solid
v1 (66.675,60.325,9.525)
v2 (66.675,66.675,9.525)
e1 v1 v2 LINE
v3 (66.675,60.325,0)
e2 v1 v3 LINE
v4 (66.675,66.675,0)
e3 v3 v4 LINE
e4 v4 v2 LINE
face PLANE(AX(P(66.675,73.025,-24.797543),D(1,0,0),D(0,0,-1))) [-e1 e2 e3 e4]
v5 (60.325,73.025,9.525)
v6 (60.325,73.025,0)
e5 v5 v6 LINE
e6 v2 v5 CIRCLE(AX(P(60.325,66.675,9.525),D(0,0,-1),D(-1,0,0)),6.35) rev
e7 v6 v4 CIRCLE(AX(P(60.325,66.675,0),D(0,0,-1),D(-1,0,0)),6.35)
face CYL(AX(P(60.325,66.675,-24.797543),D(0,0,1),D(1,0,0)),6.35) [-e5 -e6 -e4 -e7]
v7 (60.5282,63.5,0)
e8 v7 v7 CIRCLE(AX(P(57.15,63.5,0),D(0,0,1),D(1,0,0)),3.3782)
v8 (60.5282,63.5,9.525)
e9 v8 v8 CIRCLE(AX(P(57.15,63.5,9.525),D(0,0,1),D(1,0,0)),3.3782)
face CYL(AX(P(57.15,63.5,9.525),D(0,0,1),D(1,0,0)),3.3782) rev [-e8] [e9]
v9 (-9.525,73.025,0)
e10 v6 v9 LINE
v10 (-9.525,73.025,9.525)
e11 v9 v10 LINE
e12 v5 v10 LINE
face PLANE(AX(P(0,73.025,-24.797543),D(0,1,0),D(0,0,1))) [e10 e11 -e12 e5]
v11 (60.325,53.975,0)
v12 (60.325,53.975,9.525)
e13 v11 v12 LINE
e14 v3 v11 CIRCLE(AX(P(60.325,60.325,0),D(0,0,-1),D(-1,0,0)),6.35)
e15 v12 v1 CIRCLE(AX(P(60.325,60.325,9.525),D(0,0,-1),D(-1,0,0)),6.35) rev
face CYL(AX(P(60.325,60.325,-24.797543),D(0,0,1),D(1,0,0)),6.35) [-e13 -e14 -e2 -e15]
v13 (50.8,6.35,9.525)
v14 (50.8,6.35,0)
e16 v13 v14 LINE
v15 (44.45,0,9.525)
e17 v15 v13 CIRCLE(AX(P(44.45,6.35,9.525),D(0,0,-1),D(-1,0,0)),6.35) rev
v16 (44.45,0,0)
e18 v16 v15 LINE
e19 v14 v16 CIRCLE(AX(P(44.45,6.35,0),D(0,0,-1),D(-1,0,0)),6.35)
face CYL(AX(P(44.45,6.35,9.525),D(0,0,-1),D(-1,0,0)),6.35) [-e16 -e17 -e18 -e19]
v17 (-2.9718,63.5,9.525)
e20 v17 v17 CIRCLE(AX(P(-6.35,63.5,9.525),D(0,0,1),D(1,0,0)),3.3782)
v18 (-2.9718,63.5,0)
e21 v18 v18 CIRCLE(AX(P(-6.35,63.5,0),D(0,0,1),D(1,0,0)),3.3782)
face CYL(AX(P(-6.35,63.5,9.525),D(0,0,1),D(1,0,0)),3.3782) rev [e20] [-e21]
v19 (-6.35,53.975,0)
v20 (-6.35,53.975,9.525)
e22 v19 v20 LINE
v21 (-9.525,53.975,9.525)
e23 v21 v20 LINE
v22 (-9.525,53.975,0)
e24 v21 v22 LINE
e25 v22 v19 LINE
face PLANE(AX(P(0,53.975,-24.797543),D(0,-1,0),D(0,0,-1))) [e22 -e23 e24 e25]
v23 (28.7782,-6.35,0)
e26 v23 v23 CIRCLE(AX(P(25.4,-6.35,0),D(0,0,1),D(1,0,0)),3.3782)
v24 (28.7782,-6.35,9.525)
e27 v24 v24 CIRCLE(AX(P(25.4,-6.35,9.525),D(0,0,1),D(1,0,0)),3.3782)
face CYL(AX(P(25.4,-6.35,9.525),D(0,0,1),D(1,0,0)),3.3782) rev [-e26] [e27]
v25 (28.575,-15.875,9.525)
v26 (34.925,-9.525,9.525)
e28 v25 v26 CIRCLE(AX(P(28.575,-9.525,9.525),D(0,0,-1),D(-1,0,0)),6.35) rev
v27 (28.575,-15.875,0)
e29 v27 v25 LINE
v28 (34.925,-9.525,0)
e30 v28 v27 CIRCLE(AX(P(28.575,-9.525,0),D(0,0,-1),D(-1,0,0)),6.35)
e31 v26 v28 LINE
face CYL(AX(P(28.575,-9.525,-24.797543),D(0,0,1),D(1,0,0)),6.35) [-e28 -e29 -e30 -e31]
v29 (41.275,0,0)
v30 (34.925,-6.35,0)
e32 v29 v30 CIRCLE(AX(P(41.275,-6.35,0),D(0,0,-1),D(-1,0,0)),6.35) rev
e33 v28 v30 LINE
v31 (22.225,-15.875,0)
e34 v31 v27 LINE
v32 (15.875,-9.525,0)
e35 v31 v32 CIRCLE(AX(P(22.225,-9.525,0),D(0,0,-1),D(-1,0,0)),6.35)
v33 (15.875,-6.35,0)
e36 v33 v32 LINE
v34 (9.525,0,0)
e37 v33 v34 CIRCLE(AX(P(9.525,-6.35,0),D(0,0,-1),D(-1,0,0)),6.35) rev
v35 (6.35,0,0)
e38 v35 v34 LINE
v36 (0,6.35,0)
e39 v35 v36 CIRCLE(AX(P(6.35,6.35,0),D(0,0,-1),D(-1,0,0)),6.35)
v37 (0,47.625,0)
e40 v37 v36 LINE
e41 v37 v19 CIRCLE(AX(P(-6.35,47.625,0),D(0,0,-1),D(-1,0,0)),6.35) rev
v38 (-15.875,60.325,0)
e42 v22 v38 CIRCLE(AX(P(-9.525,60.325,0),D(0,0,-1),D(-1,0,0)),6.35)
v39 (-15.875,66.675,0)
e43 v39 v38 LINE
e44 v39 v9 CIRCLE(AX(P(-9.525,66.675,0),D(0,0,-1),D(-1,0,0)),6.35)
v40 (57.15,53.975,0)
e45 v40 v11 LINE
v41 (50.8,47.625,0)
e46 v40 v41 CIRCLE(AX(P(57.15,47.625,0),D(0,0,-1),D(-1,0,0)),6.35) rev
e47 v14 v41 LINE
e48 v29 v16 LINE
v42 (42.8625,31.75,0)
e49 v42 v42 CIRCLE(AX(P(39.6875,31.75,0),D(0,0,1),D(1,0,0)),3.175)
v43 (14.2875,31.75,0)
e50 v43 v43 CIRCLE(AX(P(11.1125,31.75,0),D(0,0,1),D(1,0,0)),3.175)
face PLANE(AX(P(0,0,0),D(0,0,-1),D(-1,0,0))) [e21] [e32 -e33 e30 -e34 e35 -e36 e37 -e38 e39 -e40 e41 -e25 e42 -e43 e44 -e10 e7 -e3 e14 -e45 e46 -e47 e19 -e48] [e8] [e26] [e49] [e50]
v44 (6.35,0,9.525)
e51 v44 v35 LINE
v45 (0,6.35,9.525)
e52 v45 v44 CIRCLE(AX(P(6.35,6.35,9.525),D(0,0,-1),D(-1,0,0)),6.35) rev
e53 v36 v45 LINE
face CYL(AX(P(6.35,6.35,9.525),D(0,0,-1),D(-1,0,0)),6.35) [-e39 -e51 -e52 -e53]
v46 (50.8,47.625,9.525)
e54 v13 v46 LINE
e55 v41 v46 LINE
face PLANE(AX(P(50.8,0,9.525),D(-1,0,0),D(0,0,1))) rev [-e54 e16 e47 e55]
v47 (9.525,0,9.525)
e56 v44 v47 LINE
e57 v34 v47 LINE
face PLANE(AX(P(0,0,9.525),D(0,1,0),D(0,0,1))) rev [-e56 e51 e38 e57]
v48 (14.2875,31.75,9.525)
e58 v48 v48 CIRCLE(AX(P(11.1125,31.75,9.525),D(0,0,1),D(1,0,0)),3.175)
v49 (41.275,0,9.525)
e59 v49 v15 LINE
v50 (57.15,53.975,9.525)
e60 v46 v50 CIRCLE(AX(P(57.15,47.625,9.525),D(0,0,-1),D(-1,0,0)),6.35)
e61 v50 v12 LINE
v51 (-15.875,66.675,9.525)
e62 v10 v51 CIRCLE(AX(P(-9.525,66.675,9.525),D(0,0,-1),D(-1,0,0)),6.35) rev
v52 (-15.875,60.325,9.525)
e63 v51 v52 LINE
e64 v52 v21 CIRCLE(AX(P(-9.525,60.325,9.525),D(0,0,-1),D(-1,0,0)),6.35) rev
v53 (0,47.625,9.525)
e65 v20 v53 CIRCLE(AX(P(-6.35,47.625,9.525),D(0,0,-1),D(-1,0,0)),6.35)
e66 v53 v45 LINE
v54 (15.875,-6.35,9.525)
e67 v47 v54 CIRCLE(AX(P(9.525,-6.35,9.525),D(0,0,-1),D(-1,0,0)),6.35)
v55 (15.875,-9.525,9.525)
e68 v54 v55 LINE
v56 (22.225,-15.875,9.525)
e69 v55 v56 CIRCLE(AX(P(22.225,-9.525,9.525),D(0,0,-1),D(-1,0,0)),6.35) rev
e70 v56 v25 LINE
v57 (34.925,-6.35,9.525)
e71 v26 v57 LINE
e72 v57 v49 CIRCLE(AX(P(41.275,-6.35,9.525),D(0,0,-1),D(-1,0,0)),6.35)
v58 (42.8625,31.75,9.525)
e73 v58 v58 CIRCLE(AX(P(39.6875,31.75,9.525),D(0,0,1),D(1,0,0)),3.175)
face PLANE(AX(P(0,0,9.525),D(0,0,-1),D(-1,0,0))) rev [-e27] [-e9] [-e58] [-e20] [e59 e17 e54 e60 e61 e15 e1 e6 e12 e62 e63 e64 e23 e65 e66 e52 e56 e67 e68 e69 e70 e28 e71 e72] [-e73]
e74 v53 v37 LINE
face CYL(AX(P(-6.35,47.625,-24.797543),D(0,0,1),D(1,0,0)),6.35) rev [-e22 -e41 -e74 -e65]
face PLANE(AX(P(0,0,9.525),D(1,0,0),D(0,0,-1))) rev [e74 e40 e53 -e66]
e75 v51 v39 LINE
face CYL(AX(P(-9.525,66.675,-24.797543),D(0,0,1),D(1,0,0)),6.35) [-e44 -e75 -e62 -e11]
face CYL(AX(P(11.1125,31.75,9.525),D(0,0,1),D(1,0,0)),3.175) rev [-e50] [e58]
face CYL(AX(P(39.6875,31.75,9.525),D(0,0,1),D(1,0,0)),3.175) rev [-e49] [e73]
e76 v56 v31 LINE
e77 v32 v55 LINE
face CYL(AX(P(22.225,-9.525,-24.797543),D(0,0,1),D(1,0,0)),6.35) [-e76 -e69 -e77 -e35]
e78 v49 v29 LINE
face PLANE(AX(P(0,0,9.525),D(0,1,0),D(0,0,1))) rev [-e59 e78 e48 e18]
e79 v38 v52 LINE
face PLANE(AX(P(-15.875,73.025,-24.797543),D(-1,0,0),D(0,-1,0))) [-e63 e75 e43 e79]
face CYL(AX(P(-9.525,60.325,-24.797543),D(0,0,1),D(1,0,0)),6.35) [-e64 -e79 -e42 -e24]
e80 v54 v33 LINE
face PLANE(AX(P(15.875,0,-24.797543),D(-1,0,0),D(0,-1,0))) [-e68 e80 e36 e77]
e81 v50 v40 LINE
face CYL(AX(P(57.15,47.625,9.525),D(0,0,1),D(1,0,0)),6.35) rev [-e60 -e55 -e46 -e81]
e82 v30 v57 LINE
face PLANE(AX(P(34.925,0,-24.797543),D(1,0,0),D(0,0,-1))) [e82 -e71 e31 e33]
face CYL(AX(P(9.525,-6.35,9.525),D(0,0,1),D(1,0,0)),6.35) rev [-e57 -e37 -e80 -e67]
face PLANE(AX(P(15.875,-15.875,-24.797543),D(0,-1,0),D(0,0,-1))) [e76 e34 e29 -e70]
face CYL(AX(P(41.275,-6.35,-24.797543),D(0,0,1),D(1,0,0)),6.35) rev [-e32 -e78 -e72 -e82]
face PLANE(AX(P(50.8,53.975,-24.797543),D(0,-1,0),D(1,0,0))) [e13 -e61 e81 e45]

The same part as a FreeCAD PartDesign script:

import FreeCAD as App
import Part
import Sketcher
Q = App.Units.Quantity


def edges_at(feature, points):
    """Names of the edges that pass closest to the given points."""
    edges = feature.Shape.Edges
    near = lambda p: min(range(len(edges)), key=lambda i: edges[i].distToShape(Part.Vertex(*p))[0])
    return sorted({f"Edge{near(p) + 1}" for p in points})


def add_polygon(sketch, points):
    """Adds a closed chain of lines whose ends are joined by coincident constraints."""
    first, n = sketch.GeometryCount, len(points)
    for a, b in zip(points, points[1:] + points[:1]):
        sketch.addGeometry(Part.LineSegment(App.Vector(*a, 0), App.Vector(*b, 0)), False)
    for i in range(n):
        sketch.addConstraint(Sketcher.Constraint("Coincident", first + i, 2, first + (i + 1) % n, 1))

doc = App.newDocument("Part")
params = doc.addObject("Spreadsheet::Sheet", "Params")
for row, (alias, value) in enumerate([
    ("sketch1_width", "2 in"),
    ("sketch1_height", "4 in"),
    ("pad1_length", "0.375 in"),
    ("hole_diameter", "3 mm"),
    ("sketch3_width", "0.75 in"),
    ("pad2_length", "0.375 in"),
    ("sketch4_diameter", "0.266 in"),
    ("hole2_diameter", "0.266 in"),
    ("fillet_radius", "0.25 in"),
    ("sketch5_width", "2.5 in"),
    ("sketch5_height", "1.125 in"),
    ("sketch6_diameter", "0.25 in"),
    ("hole3_diameter", "0.25 in"),
], start=1):
    params.set(f"A{row}", alias)
    params.set(f"B{row}", "=" + value)
    params.setAlias(f"B{row}", alias)

body = doc.addObject("PartDesign::Body", "Body")

sketch1 = doc.addObject("Sketcher::SketchObject", "Sketch")
body.addObject(sketch1)
sketch1.AttachmentSupport = (doc.XY_Plane, [""])
sketch1.MapMode = "FlatFace"
add_polygon(sketch1, [(0, 101.6), (0, 0), (50.8, 0), (50.8, 101.6)])
sketch1.addConstraint([
    Sketcher.Constraint("Vertical", 0),
    Sketcher.Constraint("Horizontal", 1),
    Sketcher.Constraint("Vertical", 2),
    Sketcher.Constraint("Horizontal", 3),
    Sketcher.Constraint("Coincident", 0, 2, -1, 1),
    Sketcher.Constraint("DistanceX", 1, 1, 1, 2, Q("2 in")),
    Sketcher.Constraint("DistanceY", 0, 2, 0, 1, Q("4 in")),
])
sketch1.setExpression("Constraints[9]", "Params.sketch1_width")
sketch1.setExpression("Constraints[10]", "Params.sketch1_height")
pad1 = doc.addObject("PartDesign::Pad", "Pad")
body.addObject(pad1)
pad1.Profile = sketch1
pad1.setExpression("Length", "Params.pad1_length")

sketch2 = doc.addObject("Sketcher::SketchObject", "Sketch001")
body.addObject(sketch2)
sketch2.AttachmentSupport = (doc.XY_Plane, [""])
sketch2.MapMode = "FlatFace"
sketch2.AttachmentOffset = App.Placement(App.Vector(0, 0, 0.375 * 25.4), App.Rotation())
sketch2.addGeometry([
    Part.Circle(App.Vector(12.9, 87.6, 0), App.Vector(0, 0, 1), 1.5),
    Part.Circle(App.Vector(37.9, 87.6, 0), App.Vector(0, 0, 1), 1.5),
], False)
sketch2.addConstraint([
    Sketcher.Constraint("Equal", 0, 1),
    Sketcher.Constraint("Horizontal", 0, 3, 1, 3),
    Sketcher.Constraint("Diameter", 0, Q("3 mm")),
    Sketcher.Constraint("DistanceX", -1, 1, 0, 3, Q("12.9 mm")),
    Sketcher.Constraint("DistanceY", -1, 1, 0, 3, Q("87.6 mm")),
    Sketcher.Constraint("DistanceX", -1, 1, 1, 3, Q("37.9 mm")),
])
doc.recompute()
hole = doc.addObject("PartDesign::Hole", "Hole")
body.addObject(hole)
hole.Profile = sketch2
hole.ThreadType = "None"
hole.setExpression("Diameter", "Params.hole_diameter")
hole.DepthType = "ThroughAll"

sketch3 = doc.addObject("Sketcher::SketchObject", "Sketch002")
body.addObject(sketch3)
sketch3.AttachmentSupport = (doc.XY_Plane, [""])
sketch3.MapMode = "FlatFace"
sketch3.AttachmentOffset = App.Placement(App.Vector(0, 0, 0.375 * 25.4), App.Rotation())
add_polygon(sketch3, [(-15.875, 73.025), (-15.875, 53.975), (0, 53.975), (0, 73.025)])
add_polygon(sketch3, [(50.8, 73.025), (50.8, 53.975), (66.675, 53.975), (66.675, 73.025)])
add_polygon(sketch3, [(15.875, 0), (15.875, -15.875), (34.925, -15.875), (34.925, 0)])
sketch3.addConstraint([
    Sketcher.Constraint("Vertical", 0),
    Sketcher.Constraint("Horizontal", 1),
    Sketcher.Constraint("Vertical", 2),
    Sketcher.Constraint("Horizontal", 3),
    Sketcher.Constraint("Vertical", 4),
    Sketcher.Constraint("Horizontal", 5),
    Sketcher.Constraint("Vertical", 6),
    Sketcher.Constraint("Horizontal", 7),
    Sketcher.Constraint("Vertical", 8),
    Sketcher.Constraint("Horizontal", 9),
    Sketcher.Constraint("Vertical", 10),
    Sketcher.Constraint("Horizontal", 11),
    Sketcher.Constraint("PointOnObject", 1, 2, -2),
    Sketcher.Constraint("PointOnObject", 10, 2, -1),
    Sketcher.Constraint("Horizontal", 1, 2, 4, 2),
    Sketcher.Constraint("Horizontal", 3, 2, 6, 2),
    Sketcher.Constraint("Equal", 3, 5),
    Sketcher.Constraint("Equal", 11, 0),
    Sketcher.Constraint("Equal", 7, 8),
    Sketcher.Constraint("DistanceX", -1, 1, 4, 2, Q("2 in")),
    Sketcher.Constraint("DistanceX", 8, 2, 5, 2, Q("2 in")),
    Sketcher.Constraint("DistanceX", 0, 2, 9, 2, Q("2 in")),
    Sketcher.Constraint("DistanceX", 9, 1, 9, 2, Q("0.75 in")),
    Sketcher.Constraint("DistanceY", 8, 2, 2, 2, Q("3.5 in")),
])
sketch3.setExpression("Constraints[34]", "Params.sketch3_width")
pad2 = doc.addObject("PartDesign::Pad", "Pad001")
body.addObject(pad2)
pad2.Profile = sketch3
pad2.setExpression("Length", "Params.pad2_length")
pad2.Reversed = True

sketch4 = doc.addObject("Sketcher::SketchObject", "Sketch003")
body.addObject(sketch4)
sketch4.AttachmentSupport = (doc.XY_Plane, [""])
sketch4.MapMode = "FlatFace"
sketch4.AttachmentOffset = App.Placement(App.Vector(0, 0, 0.375 * 25.4), App.Rotation())
sketch4.addGeometry([
    Part.Circle(App.Vector(-6.35, 63.5, 0), App.Vector(0, 0, 1), 3.3782),
    Part.Circle(App.Vector(57.15, 63.5, 0), App.Vector(0, 0, 1), 3.3782),
    Part.Circle(App.Vector(25.4, -6.35, 0), App.Vector(0, 0, 1), 3.3782),
], False)
sketch4.addConstraint([
    Sketcher.Constraint("Equal", 0, 1),
    Sketcher.Constraint("Equal", 1, 2),
    Sketcher.Constraint("Horizontal", 0, 3, 1, 3),
    Sketcher.Constraint("Diameter", 0, Q("0.266 in")),
    Sketcher.Constraint("DistanceX", -1, 1, 2, 3, Q("1 in")),
    Sketcher.Constraint("DistanceY", -1, 1, 0, 3, Q("2.5 in")),
    Sketcher.Constraint("DistanceX", 0, 3, 1, 3, Q("2.5 in")),
    Sketcher.Constraint("DistanceX", 0, 3, -1, 1, Q("0.25 in")),
    Sketcher.Constraint("DistanceY", 2, 3, -1, 1, Q("0.25 in")),
])
sketch4.setExpression("Constraints[3]", "Params.sketch4_diameter")
doc.recompute()
hole2 = doc.addObject("PartDesign::Hole", "Hole001")
body.addObject(hole2)
hole2.Profile = sketch4
hole2.ThreadType = "None"
hole2.setExpression("Diameter", "Params.hole2_diameter")
hole2.DepthType = "ThroughAll"
doc.recompute()

fillet = doc.addObject("PartDesign::Fillet", "Fillet")
body.addObject(fillet)
fillet.Base = (hole2, edges_at(hole2, [
    (-15.875, 73.025, 4.763),
    (-15.875, 53.975, 4.763),
    (0, 53.975, 4.763),
    (0, 73.025, 4.763),
    (50.8, 53.975, 4.763),
    (66.675, 53.975, 4.763),
    (66.675, 73.025, 4.763),
    (50.8, 73.025, 4.763),
    (34.925, -15.875, 4.763),
    (34.925, 0, 4.763),
    (15.875, 0, 4.763),
    (15.875, -15.875, 4.763),
    (0, 101.6, 4.763),
    (50.8, 101.6, 4.763),
    (50.8, 0, 4.763),
    (0, 0, 4.763),
]))
fillet.setExpression("Radius", "Params.fillet_radius")

sketch5 = doc.addObject("Sketcher::SketchObject", "Sketch004")
body.addObject(sketch5)
sketch5.AttachmentSupport = (doc.XY_Plane, [""])
sketch5.MapMode = "FlatFace"
sketch5.AttachmentOffset = App.Placement(App.Vector(0, 0, 0.375 * 25.4), App.Rotation())
add_polygon(sketch5, [(-6.35, 101.6), (-6.35, 73.025), (57.15, 73.025), (57.15, 101.6)])
sketch5.addConstraint([
    Sketcher.Constraint("Vertical", 0),
    Sketcher.Constraint("Horizontal", 1),
    Sketcher.Constraint("Vertical", 2),
    Sketcher.Constraint("Horizontal", 3),
    Sketcher.Constraint("DistanceX", 1, 1, 1, 2, Q("2.5 in")),
    Sketcher.Constraint("DistanceY", -1, 1, 2, 2, Q("4 in")),
    Sketcher.Constraint("DistanceY", 0, 2, 0, 1, Q("1.125 in")),
    Sketcher.Constraint("DistanceX", 0, 2, -1, 1, Q("0.25 in")),
])
sketch5.setExpression("Constraints[8]", "Params.sketch5_width")
sketch5.setExpression("Constraints[10]", "Params.sketch5_height")
pocket1 = doc.addObject("PartDesign::Pocket", "Pocket")
body.addObject(pocket1)
pocket1.Profile = sketch5
pocket1.Type = "ThroughAll"

sketch6 = doc.addObject("Sketcher::SketchObject", "Sketch005")
body.addObject(sketch6)
sketch6.AttachmentSupport = (doc.XY_Plane, [""])
sketch6.MapMode = "FlatFace"
sketch6.AttachmentOffset = App.Placement(App.Vector(0, 0, 0.375 * 25.4), App.Rotation())
sketch6.addGeometry([
    Part.Circle(App.Vector(11.1125, 31.75, 0), App.Vector(0, 0, 1), 3.175),
    Part.Circle(App.Vector(39.6875, 31.75, 0), App.Vector(0, 0, 1), 3.175),
], False)
sketch6.addConstraint([
    Sketcher.Constraint("Equal", 0, 1),
    Sketcher.Constraint("Horizontal", 0, 3, 1, 3),
    Sketcher.Constraint("Diameter", 0, Q("0.25 in")),
    Sketcher.Constraint("DistanceY", -1, 1, 0, 3, Q("1.25 in")),
    Sketcher.Constraint("DistanceX", -1, 1, 0, 3, Q("0.4375 in")),
    Sketcher.Constraint("DistanceX", -1, 1, 1, 3, Q("1.5625 in")),
])
sketch6.setExpression("Constraints[2]", "Params.sketch6_diameter")
doc.recompute()
hole3 = doc.addObject("PartDesign::Hole", "Hole002")
body.addObject(hole3)
hole3.Profile = sketch6
hole3.ThreadType = "None"
hole3.setExpression("Diameter", "Params.hole3_diameter")
hole3.DepthType = "ThroughAll"

doc.recompute()
